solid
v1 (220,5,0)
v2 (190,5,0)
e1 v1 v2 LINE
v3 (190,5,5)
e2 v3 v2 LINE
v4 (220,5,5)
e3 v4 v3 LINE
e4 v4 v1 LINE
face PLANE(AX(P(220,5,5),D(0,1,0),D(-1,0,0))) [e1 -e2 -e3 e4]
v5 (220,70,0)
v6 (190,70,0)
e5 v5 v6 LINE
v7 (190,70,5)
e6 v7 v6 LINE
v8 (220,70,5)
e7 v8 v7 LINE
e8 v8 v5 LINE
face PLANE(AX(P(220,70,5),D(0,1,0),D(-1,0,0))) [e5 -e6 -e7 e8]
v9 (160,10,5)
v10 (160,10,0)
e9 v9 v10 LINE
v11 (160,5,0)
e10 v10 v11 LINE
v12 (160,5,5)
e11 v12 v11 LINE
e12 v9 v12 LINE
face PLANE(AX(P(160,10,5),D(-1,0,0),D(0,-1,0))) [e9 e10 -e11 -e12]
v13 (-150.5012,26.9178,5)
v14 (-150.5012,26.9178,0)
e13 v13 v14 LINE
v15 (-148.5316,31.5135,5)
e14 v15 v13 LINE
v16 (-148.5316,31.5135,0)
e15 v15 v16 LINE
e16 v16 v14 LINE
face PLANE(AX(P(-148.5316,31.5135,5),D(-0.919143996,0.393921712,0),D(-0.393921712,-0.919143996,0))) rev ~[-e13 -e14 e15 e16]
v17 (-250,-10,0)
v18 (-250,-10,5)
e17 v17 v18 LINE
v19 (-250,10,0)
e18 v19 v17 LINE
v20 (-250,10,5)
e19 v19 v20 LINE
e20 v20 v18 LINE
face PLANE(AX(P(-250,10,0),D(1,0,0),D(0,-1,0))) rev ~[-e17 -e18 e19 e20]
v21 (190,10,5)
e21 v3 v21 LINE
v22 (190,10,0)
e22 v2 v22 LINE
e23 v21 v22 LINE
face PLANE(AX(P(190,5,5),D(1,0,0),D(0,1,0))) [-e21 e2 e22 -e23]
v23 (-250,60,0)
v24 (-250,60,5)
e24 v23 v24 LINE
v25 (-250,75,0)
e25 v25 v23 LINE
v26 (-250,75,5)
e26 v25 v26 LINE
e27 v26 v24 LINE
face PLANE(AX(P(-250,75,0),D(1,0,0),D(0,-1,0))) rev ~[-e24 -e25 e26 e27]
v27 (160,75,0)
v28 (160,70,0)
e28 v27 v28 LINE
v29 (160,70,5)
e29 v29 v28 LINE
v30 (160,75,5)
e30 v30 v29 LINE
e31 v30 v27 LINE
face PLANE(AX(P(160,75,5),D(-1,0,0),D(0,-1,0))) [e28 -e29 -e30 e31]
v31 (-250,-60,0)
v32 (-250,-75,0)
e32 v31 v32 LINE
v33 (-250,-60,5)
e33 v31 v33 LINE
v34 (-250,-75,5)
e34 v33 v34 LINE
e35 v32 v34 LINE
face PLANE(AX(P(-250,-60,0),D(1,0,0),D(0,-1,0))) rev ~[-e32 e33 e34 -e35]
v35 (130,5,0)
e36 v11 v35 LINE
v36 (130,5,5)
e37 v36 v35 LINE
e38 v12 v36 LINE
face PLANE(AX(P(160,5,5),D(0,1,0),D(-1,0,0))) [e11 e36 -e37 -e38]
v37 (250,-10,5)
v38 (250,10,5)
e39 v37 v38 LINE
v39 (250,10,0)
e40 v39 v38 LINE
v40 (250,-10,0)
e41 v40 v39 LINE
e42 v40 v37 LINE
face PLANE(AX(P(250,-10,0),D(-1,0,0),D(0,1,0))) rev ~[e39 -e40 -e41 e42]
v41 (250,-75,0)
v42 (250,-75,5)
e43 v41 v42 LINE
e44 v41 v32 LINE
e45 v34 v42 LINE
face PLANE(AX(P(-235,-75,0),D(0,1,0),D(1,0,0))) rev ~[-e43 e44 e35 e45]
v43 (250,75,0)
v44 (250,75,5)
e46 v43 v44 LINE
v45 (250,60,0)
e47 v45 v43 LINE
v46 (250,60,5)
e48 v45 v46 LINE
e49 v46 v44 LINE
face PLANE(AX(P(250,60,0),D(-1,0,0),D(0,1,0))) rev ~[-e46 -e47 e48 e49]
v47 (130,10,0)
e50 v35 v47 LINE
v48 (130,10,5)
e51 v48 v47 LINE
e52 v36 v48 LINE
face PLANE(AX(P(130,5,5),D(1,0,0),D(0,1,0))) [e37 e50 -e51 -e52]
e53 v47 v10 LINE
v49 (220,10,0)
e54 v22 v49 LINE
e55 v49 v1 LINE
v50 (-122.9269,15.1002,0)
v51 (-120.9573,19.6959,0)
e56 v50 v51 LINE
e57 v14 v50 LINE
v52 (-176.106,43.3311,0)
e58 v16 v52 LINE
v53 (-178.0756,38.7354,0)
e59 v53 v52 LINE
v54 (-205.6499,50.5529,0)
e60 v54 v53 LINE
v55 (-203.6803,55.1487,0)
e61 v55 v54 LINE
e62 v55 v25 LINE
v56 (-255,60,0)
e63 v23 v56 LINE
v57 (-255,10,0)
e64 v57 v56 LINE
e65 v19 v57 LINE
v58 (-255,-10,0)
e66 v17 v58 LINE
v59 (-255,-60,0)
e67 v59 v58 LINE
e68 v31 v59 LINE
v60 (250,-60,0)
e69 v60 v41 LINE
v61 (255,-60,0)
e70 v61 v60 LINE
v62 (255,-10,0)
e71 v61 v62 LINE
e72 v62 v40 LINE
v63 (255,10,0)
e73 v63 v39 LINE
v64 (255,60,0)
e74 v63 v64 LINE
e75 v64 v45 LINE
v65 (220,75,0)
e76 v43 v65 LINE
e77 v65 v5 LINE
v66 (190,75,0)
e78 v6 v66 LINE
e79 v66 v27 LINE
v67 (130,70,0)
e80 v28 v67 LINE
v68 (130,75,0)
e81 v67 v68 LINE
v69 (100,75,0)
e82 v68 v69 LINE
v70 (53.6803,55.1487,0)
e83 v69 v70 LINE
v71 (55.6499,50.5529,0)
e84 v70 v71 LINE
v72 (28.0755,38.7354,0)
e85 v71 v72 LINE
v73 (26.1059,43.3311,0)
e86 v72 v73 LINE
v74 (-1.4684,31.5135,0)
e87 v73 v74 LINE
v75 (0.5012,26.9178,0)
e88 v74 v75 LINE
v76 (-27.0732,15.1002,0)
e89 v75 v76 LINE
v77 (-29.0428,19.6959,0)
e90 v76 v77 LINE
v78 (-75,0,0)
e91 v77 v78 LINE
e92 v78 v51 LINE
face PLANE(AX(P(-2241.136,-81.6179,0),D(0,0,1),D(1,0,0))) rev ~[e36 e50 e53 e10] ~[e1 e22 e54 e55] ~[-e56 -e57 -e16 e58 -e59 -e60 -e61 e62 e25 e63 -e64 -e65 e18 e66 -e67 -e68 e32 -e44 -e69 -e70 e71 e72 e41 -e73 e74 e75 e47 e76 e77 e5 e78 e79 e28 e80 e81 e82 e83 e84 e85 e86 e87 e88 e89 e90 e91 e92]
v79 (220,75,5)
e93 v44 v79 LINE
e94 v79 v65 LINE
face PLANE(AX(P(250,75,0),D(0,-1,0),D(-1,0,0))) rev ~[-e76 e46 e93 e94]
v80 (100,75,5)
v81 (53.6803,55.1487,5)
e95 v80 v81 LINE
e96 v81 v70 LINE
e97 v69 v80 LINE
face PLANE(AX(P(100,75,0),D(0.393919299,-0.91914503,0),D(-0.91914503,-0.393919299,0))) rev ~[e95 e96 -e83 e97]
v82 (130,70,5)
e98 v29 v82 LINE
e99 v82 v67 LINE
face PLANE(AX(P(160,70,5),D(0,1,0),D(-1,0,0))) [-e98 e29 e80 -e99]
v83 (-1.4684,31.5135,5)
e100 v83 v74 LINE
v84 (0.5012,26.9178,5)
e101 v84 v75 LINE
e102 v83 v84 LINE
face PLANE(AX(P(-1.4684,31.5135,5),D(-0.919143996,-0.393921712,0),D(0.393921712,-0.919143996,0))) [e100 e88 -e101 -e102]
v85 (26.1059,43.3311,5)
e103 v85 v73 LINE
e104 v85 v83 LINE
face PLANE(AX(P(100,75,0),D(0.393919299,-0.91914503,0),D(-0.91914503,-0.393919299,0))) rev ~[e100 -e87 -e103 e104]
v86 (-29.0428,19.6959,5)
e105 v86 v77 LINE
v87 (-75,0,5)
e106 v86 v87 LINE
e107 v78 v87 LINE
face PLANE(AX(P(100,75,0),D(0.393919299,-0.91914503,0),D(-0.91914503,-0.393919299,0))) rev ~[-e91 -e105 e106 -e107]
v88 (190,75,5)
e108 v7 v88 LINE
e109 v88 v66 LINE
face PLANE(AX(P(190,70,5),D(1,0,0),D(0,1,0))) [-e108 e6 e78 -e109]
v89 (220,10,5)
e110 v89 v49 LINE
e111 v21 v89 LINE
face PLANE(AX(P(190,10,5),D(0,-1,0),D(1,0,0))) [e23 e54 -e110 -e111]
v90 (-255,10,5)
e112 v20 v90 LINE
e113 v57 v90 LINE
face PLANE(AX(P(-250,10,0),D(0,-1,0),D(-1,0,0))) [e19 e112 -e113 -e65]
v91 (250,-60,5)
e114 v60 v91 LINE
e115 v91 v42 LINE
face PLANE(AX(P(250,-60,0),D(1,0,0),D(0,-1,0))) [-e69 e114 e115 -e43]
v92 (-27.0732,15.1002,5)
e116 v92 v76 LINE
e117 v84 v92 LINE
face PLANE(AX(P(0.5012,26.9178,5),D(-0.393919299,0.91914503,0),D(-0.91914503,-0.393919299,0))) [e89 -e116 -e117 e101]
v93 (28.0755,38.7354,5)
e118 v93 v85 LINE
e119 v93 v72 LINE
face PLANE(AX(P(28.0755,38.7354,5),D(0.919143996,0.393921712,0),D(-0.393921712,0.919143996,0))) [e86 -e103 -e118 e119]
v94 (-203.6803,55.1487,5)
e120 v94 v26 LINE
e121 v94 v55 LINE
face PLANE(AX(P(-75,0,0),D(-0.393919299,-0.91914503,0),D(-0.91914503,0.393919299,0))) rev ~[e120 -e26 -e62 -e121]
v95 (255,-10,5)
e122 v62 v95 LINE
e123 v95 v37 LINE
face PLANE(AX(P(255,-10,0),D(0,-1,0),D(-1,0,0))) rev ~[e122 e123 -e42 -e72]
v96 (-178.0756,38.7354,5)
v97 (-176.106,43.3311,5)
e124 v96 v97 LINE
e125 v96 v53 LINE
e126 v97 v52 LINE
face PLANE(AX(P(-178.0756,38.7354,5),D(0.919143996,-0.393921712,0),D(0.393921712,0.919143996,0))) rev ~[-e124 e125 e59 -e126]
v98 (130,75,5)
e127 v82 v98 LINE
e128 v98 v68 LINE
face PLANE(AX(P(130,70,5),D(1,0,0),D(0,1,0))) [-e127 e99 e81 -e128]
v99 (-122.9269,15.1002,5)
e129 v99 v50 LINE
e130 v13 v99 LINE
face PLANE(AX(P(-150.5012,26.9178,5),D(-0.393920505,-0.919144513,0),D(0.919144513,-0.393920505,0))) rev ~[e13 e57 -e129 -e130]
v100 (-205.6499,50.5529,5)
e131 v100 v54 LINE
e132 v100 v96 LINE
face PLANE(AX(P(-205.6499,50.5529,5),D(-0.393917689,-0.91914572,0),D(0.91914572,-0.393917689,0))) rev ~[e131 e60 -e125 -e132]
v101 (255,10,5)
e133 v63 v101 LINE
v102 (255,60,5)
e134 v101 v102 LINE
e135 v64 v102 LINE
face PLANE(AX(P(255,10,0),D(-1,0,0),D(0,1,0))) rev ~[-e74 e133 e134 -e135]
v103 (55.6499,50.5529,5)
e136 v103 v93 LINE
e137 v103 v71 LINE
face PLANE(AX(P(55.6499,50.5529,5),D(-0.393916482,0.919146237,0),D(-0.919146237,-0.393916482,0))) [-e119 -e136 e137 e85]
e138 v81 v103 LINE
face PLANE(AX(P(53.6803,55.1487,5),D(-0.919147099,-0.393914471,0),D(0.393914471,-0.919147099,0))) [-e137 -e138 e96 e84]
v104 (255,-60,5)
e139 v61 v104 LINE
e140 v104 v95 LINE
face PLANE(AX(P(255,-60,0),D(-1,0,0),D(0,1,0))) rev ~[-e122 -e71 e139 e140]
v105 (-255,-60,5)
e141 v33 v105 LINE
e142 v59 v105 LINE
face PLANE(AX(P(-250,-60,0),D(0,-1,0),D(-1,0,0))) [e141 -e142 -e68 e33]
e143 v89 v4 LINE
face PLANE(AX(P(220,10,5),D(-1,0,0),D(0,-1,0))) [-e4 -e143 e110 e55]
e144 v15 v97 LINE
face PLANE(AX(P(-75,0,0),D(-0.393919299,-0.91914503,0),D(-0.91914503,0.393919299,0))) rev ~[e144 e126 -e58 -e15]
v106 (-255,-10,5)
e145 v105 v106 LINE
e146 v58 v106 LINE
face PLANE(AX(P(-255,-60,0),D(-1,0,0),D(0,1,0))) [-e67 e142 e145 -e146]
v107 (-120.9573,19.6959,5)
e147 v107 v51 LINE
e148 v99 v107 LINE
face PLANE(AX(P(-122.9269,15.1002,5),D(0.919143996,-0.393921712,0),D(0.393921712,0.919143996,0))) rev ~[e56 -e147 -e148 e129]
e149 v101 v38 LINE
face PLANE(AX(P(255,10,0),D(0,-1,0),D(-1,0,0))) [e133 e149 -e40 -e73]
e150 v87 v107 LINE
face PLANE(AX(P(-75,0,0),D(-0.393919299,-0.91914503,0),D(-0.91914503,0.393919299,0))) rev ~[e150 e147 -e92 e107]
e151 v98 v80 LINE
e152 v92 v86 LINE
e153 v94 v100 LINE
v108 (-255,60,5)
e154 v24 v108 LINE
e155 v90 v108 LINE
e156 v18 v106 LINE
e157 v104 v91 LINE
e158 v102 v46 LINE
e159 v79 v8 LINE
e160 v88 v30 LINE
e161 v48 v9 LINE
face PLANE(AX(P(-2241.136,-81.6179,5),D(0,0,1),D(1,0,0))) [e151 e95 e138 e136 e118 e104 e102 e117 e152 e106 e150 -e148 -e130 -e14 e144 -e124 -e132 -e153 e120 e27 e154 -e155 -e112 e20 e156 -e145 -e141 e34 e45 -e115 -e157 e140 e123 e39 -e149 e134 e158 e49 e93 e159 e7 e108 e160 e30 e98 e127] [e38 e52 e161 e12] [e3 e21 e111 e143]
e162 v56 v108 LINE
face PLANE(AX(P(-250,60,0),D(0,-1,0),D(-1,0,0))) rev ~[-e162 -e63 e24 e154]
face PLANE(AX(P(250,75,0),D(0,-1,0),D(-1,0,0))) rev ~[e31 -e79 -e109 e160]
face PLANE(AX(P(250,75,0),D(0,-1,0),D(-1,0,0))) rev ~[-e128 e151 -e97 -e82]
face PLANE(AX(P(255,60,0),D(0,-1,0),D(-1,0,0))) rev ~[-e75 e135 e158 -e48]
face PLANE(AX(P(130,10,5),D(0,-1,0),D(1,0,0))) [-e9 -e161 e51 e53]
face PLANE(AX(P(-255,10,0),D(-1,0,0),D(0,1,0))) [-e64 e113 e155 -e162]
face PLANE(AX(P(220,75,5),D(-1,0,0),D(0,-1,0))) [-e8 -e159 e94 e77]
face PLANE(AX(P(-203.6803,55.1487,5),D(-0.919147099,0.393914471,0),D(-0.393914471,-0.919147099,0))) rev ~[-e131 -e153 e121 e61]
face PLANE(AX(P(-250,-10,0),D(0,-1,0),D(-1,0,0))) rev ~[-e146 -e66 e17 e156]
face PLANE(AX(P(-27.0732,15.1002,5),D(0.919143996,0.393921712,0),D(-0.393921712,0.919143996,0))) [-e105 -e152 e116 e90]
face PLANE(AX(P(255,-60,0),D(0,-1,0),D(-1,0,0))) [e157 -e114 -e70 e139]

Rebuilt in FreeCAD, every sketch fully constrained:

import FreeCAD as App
import Part
import Sketcher


def add_polygon(sketch, points):
    """Adds a closed chain of lines whose ends are joined by coincident constraints."""
    first, n = sketch.GeometryCount, len(points)
    for a, b in zip(points, points[1:] + points[:1]):
        sketch.addGeometry(Part.LineSegment(App.Vector(*a, 0), App.Vector(*b, 0)), False)
    for i in range(n):
        sketch.addConstraint(Sketcher.Constraint("Coincident", first + i, 2, first + (i + 1) % n, 1))

doc = App.newDocument("Part")
body = doc.addObject("PartDesign::Body", "Body")

sketch1 = body.newObject("Sketcher::SketchObject", "Sketch")
sketch1.AttachmentSupport = (doc.getObject("XY_Plane"), [""])
sketch1.MapMode = "FlatFace"
add_polygon(sketch1, [(-250, 10), (-250, -10), (-255, -10), (-255, -60), (-250, -60), (-250, -75), (250, -75), (250, -60), (255, -60), (255, -10), (250, -10), (250, 10), (255, 10), (255, 60), (250, 60), (250, 75), (100, 75), (-75, 0), (-250, 75), (-250, 60), (-255, 60), (-255, 10)])
sketch1.addConstraint([
    Sketcher.Constraint("Vertical", 0),
    Sketcher.Constraint("Horizontal", 1),
    Sketcher.Constraint("Vertical", 2),
    Sketcher.Constraint("Horizontal", 3),
    Sketcher.Constraint("Vertical", 4),
    Sketcher.Constraint("Horizontal", 5),
    Sketcher.Constraint("Vertical", 6),
    Sketcher.Constraint("Horizontal", 7),
    Sketcher.Constraint("Vertical", 8),
    Sketcher.Constraint("Horizontal", 9),
    Sketcher.Constraint("Vertical", 10),
    Sketcher.Constraint("Horizontal", 11),
    Sketcher.Constraint("Vertical", 12),
    Sketcher.Constraint("Horizontal", 13),
    Sketcher.Constraint("Vertical", 14),
    Sketcher.Constraint("Horizontal", 15),
    Sketcher.Constraint("Vertical", 18),
    Sketcher.Constraint("Horizontal", 19),
    Sketcher.Constraint("Vertical", 20),
    Sketcher.Constraint("Horizontal", 21),
    Sketcher.Constraint("Symmetric", 0, 2, 10, 2, -1, 1),
    Sketcher.Constraint("Symmetric", 2, 2, 12, 2, -1, 1),
    Sketcher.Constraint("Symmetric", 4, 2, 14, 2, -1, 1),
    Sketcher.Constraint("Symmetric", 5, 2, 17, 2, -1, 1),
    Sketcher.Constraint("Symmetric", 7, 2, 19, 2, -1, 1),
    Sketcher.Constraint("Symmetric", 3, 2, 6, 2, -2),
    Sketcher.Constraint("Symmetric", 1, 2, 8, 2, -2),
    Sketcher.Constraint("PointOnObject", 16, 2, -1),
    Sketcher.Constraint("Horizontal", 11, 2, 20, 2),
    Sketcher.Constraint("Vertical", 0, 2, 3, 2),
    Sketcher.Constraint("Equal", 16, 17),
    Sketcher.Constraint("DistanceX", 1, 2, 1, 1, 5.0),
    Sketcher.Constraint("DistanceX", 5, 1, 5, 2, 500.0),
    Sketcher.Constraint("DistanceX", 15, 2, 15, 1, 150.0),
    Sketcher.Constraint("DistanceY", 0, 2, 0, 1, 20.0),
    Sketcher.Constraint("DistanceY", 2, 2, 2, 1, 50.0),
    Sketcher.Constraint("DistanceY", 4, 2, 4, 1, 15.0),
])
pad1 = body.newObject("PartDesign::Pad", "Pad")
pad1.Profile = sketch1
pad1.Length = 5

sketch2 = body.newObject("Sketcher::SketchObject", "Sketch001")
sketch2.AttachmentSupport = (doc.getObject("XY_Plane"), [""])
sketch2.MapMode = "FlatFace"
sketch2.AttachmentOffset = App.Placement(App.Vector(0, 0, 5), App.Rotation())
add_polygon(sketch2, [(-176.1, 43.3), (-203.7, 55.1), (-205.6, 50.6), (-178.1, 38.7)])
add_polygon(sketch2, [(220, 70), (220, 75), (190, 75), (190, 70)])
add_polygon(sketch2, [(-121, 19.7), (-148.5, 31.5), (-150.5, 26.9), (-122.9, 15.1)])
add_polygon(sketch2, [(160, 70), (160, 75), (130, 75), (130, 70)])
add_polygon(sketch2, [(-1.5, 31.5), (-29, 19.7), (-27.1, 15.1), (0.5, 26.9)])
add_polygon(sketch2, [(55.6, 50.6), (53.7, 55.1), (26.1, 43.3), (28.1, 38.7)])
sketch2.addConstraint([
    Sketcher.Constraint("Vertical", 4),
    Sketcher.Constraint("Horizontal", 5),
    Sketcher.Constraint("Vertical", 6),
    Sketcher.Constraint("Horizontal", 7),
    Sketcher.Constraint("Vertical", 12),
    Sketcher.Constraint("Horizontal", 13),
    Sketcher.Constraint("Vertical", 14),
    Sketcher.Constraint("Horizontal", 15),
    Sketcher.Constraint("Perpendicular", 0, 1),
    Sketcher.Constraint("Perpendicular", 1, 2),
    Sketcher.Constraint("Perpendicular", 2, 3),
    Sketcher.Constraint("Perpendicular", 3, 8),
    Sketcher.Constraint("Perpendicular", 8, 9),
    Sketcher.Constraint("Perpendicular", 9, 10),
    Sketcher.Constraint("Perpendicular", 10, 11),
    Sketcher.Constraint("Perpendicular", 16, 17),
    Sketcher.Constraint("Perpendicular", 17, 18),
    Sketcher.Constraint("Perpendicular", 18, 19),
    Sketcher.Constraint("Parallel", 19, 20),
    Sketcher.Constraint("Perpendicular", 20, 21),
    Sketcher.Constraint("Perpendicular", 21, 22),
    Sketcher.Constraint("Perpendicular", 22, 23),
    Sketcher.Constraint("Horizontal", 5, 2, 12, 2),
    Sketcher.Constraint("Horizontal", 7, 2, 14, 2),
    Sketcher.Constraint("Horizontal", 11, 2, 16, 2),
    Sketcher.Constraint("Horizontal", 10, 2, 17, 2),
    Sketcher.Constraint("Horizontal", 9, 2, 18, 2),
    Sketcher.Constraint("Horizontal", 0, 2, 20, 2),
    Sketcher.Constraint("Horizontal", 3, 2, 21, 2),
    Sketcher.Constraint("Horizontal", 2, 2, 22, 2),
    Sketcher.Constraint("Equal", 7, 13),
    Sketcher.Constraint("Equal", 2, 8),
    Sketcher.Constraint("Equal", 3, 9),
    Sketcher.Constraint("Equal", 10, 16),
    Sketcher.Constraint("DistanceX", 5, 2, 5, 1, 30.0),
    Sketcher.Constraint("DistanceY", 4, 1, 4, 2, 5.0),
    Sketcher.Constraint("Distance", 0, 30.0),
    Sketcher.Constraint("Distance", 1, 5.0),
    Sketcher.Constraint("DistanceX", 12, 2, 5, 2, 30.0),
    Sketcher.Constraint("DistanceX", -1, 1, 4, 2, 220.0),
    Sketcher.Constraint("DistanceY", -1, 1, 4, 2, 75.0),
    Sketcher.Constraint("DistanceX", 1, 2, -1, 1, 205.65),
    Sketcher.Constraint("DistanceX", -1, 1, 23, 2, 55.65),
    Sketcher.Constraint("DistanceY", -1, 1, 1, 2, 50.553),
    Sketcher.Constraint("DistanceX", 3, 2, -1, 1, 176.106),
    Sketcher.Constraint("DistanceX", 10, 2, -1, 1, 122.927),
    Sketcher.Constraint("DistanceY", -1, 1, 11, 2, 19.696),
    Sketcher.Constraint("DistanceX", 10, 2, 16, 2, 93.884),
])
pocket1 = body.newObject("PartDesign::Pocket", "Pocket")
pocket1.Profile = sketch2
pocket1.Length = 5

sketch3 = body.newObject("Sketcher::SketchObject", "Sketch002")
sketch3.AttachmentSupport = (doc.getObject("XY_Plane"), [""])
sketch3.MapMode = "FlatFace"
sketch3.AttachmentOffset = App.Placement(App.Vector(0, 0, 5), App.Rotation())
add_polygon(sketch3, [(160, 10), (130, 10), (130, 5), (160, 5)])
add_polygon(sketch3, [(220, 10), (190, 10), (190, 5), (220, 5)])
sketch3.addConstraint([
    Sketcher.Constraint("Horizontal", 0),
    Sketcher.Constraint("Vertical", 1),
    Sketcher.Constraint("Horizontal", 2),
    Sketcher.Constraint("Vertical", 3),
    Sketcher.Constraint("Horizontal", 4),
    Sketcher.Constraint("Vertical", 5),
    Sketcher.Constraint("Horizontal", 6),
    Sketcher.Constraint("Vertical", 7),
    Sketcher.Constraint("Horizontal", 3, 2, 4, 2),
    Sketcher.Constraint("Horizontal", 2, 2, 5, 2),
    Sketcher.Constraint("Equal", 2, 4),
    Sketcher.Constraint("DistanceX", 0, 2, 0, 1, 30.0),
    Sketcher.Constraint("DistanceY", 1, 2, 1, 1, 5.0),
    Sketcher.Constraint("DistanceY", -1, 1, 1, 2, 5.0),
    Sketcher.Constraint("DistanceX", 3, 2, 4, 2, 30.0),
    Sketcher.Constraint("DistanceX", -1, 1, 0, 2, 130.0),
])
pocket2 = body.newObject("PartDesign::Pocket", "Pocket001")
pocket2.Profile = sketch3
pocket2.Length = 5

doc.recompute()
